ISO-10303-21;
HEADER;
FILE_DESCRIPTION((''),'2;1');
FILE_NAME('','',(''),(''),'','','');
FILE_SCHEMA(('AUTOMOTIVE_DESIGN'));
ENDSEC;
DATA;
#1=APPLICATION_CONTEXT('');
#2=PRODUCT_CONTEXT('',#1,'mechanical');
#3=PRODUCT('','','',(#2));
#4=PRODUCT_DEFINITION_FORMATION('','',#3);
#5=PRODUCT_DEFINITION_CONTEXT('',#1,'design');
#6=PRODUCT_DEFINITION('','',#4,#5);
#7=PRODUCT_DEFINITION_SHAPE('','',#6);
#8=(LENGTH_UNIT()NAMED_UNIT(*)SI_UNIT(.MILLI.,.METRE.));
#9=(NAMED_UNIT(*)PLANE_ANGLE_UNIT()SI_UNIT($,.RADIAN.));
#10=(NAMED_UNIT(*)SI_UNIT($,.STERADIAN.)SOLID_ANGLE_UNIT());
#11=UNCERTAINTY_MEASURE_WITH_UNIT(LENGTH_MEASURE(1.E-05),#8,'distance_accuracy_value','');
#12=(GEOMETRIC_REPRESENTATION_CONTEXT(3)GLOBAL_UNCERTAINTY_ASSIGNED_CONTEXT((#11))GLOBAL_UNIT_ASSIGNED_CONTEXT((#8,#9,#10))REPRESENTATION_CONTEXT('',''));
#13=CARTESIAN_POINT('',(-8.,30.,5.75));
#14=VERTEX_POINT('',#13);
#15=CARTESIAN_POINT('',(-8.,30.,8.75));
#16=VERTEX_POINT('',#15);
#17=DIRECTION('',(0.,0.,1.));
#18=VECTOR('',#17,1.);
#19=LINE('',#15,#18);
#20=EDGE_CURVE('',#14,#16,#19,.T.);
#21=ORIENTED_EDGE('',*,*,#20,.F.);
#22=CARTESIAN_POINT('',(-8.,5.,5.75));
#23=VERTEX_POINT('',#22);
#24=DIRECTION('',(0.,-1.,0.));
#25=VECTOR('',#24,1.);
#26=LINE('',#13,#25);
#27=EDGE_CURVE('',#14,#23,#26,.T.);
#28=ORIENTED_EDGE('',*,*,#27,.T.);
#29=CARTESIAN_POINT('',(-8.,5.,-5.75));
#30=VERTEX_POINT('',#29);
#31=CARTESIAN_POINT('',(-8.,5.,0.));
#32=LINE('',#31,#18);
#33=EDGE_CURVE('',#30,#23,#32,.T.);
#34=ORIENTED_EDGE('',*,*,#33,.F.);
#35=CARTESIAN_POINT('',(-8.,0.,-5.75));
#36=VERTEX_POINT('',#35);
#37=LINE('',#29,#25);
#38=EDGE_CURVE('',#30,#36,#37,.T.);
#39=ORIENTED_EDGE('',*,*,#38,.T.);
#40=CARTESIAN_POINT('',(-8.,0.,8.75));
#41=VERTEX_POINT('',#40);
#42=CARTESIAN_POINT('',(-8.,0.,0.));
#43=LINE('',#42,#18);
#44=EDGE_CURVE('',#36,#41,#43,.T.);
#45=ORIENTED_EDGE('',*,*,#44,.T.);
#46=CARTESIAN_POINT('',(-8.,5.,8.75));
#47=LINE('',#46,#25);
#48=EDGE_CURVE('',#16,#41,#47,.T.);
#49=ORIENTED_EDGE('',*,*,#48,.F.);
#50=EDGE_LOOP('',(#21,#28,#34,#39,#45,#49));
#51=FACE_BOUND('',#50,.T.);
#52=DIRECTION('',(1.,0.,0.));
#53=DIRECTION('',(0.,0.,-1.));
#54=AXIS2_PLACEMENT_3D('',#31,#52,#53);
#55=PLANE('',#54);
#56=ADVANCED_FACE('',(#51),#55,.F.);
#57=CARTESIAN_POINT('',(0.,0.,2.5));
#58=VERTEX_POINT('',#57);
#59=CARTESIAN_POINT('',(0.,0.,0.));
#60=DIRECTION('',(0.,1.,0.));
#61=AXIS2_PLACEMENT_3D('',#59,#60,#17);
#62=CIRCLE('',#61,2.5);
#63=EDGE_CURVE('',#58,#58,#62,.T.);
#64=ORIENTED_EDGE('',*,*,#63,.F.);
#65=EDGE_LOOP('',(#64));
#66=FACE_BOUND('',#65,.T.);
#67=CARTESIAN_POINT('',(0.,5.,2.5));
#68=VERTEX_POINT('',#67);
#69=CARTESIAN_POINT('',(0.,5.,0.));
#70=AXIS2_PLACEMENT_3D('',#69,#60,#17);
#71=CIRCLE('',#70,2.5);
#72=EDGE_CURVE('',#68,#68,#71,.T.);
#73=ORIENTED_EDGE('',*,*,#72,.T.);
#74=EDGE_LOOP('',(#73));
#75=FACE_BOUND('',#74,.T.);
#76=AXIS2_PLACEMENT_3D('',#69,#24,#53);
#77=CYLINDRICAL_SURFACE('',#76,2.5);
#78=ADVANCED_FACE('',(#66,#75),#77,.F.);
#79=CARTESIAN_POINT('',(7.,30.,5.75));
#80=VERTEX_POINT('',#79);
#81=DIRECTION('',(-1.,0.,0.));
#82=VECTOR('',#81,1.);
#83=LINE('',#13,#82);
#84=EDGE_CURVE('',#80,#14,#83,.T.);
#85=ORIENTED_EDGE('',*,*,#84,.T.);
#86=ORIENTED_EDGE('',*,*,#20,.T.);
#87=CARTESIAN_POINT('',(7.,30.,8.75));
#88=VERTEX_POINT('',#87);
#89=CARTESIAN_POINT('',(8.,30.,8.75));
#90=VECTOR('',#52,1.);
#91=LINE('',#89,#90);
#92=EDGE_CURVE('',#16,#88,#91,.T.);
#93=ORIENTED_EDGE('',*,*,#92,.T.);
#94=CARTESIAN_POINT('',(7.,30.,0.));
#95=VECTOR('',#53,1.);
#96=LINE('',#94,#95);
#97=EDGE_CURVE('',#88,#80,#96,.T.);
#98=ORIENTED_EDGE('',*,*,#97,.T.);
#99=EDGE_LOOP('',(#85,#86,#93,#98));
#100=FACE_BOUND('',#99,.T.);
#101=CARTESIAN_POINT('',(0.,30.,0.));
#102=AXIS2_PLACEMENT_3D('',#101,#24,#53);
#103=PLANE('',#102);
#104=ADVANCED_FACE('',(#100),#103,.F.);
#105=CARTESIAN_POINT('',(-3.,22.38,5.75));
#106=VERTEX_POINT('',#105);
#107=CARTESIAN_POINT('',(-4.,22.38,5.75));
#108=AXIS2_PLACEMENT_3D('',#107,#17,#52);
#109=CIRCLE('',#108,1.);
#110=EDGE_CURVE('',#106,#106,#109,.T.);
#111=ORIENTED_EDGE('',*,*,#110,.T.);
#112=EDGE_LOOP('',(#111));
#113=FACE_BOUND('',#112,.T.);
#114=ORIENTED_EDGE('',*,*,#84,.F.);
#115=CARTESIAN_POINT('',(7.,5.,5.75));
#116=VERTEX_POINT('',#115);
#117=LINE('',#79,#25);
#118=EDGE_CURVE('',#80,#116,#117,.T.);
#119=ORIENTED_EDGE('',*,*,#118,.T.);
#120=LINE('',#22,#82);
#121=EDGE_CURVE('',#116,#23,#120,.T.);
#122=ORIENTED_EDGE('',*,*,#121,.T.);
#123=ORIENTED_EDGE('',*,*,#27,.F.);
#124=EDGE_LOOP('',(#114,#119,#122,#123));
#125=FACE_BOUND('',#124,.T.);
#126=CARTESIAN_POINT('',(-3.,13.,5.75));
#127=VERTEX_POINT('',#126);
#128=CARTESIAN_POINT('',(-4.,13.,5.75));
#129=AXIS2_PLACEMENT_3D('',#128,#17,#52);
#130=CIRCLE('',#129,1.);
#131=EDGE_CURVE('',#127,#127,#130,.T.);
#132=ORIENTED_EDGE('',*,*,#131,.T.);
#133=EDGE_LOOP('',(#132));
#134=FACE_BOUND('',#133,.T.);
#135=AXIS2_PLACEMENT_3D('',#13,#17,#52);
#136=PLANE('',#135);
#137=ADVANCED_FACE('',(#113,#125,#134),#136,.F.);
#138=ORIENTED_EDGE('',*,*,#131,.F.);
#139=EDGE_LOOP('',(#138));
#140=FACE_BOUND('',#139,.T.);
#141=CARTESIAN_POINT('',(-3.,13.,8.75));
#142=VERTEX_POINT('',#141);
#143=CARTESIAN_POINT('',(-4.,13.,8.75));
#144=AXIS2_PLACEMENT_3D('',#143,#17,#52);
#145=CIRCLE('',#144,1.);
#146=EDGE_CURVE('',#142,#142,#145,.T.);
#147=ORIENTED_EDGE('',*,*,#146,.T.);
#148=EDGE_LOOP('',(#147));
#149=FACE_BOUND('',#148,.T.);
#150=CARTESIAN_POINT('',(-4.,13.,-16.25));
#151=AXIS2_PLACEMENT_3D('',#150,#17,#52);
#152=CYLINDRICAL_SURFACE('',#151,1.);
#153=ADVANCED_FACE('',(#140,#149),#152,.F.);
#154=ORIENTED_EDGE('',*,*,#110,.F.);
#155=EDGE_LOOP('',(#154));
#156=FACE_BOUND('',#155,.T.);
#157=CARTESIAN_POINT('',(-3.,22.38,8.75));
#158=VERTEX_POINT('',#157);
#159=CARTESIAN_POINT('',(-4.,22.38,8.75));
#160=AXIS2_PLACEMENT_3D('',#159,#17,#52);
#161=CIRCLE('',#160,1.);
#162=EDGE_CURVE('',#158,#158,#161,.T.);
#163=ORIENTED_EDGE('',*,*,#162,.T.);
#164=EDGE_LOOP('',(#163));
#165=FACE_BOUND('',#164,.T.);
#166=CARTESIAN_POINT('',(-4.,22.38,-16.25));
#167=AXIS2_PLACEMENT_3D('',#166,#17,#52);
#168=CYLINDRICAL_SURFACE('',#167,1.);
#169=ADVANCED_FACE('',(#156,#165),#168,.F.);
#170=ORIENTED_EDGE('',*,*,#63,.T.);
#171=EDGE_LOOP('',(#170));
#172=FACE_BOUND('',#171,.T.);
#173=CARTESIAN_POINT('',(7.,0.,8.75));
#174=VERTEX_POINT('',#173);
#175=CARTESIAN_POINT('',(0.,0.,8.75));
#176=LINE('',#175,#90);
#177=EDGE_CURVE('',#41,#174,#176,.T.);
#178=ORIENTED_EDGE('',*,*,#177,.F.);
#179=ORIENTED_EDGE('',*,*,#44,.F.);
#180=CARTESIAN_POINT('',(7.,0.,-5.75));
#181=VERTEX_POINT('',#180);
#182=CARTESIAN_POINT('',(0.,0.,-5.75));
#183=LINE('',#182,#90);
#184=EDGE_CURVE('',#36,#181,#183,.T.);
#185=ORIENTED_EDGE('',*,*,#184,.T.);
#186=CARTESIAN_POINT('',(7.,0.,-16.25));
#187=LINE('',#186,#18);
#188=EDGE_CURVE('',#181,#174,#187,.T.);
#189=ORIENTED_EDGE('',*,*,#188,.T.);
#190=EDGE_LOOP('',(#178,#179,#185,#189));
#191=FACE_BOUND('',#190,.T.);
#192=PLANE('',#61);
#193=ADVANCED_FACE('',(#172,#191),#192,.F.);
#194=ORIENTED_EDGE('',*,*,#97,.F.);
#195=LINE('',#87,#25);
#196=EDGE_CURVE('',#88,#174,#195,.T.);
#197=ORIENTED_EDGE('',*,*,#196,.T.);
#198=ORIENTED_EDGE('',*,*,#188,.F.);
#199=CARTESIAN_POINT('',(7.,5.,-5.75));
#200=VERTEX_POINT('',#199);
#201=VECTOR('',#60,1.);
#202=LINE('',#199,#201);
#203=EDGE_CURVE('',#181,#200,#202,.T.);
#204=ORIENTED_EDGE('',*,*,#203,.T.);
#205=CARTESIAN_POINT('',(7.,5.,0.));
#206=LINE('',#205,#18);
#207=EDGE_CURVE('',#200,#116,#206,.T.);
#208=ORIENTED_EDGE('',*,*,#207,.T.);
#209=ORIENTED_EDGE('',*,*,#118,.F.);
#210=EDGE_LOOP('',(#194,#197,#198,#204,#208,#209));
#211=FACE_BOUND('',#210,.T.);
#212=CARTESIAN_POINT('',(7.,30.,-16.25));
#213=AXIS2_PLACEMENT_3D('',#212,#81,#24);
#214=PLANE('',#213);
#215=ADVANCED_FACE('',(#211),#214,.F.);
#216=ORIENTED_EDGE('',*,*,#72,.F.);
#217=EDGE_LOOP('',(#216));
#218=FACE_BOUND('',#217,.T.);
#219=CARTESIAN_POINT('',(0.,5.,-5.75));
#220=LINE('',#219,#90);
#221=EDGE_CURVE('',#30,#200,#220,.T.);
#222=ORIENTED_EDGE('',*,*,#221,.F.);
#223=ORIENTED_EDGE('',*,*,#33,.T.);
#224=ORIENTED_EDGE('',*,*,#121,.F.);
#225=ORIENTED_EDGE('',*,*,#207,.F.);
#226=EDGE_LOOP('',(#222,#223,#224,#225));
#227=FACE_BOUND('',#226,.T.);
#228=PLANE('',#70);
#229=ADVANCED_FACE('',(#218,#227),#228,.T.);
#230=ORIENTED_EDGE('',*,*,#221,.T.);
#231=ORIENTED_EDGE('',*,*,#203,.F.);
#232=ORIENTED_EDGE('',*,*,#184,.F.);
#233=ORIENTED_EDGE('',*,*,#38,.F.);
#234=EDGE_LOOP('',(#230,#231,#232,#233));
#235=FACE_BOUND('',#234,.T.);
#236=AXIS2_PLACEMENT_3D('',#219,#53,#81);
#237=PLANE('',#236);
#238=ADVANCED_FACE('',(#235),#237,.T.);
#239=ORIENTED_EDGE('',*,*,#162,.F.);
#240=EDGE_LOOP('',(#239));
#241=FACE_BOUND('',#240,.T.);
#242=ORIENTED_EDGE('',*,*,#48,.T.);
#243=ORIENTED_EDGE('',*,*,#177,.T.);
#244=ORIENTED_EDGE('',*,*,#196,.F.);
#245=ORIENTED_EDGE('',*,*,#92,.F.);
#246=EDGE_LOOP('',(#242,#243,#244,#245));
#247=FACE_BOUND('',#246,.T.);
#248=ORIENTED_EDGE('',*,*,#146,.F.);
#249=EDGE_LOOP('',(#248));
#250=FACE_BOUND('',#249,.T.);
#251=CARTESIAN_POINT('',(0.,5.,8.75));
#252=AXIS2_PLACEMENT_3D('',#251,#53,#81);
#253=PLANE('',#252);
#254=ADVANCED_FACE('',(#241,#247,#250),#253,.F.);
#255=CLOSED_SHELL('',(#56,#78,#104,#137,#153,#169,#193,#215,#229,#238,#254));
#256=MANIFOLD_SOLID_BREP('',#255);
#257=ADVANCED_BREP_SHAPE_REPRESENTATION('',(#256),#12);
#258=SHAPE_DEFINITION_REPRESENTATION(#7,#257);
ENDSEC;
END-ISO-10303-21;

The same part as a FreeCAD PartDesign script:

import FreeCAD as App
import Part
import Sketcher

V = App.Vector
Q = App.Units.Quantity


def add_polygon(sketch, points):
    """Adds a closed chain of lines whose ends are joined by coincident constraints."""
    first, n = sketch.GeometryCount, len(points)
    for a, b in zip(points, points[1:] + points[:1]):
        sketch.addGeometry(Part.LineSegment(App.Vector(*a, 0), App.Vector(*b, 0)), False)
    for i in range(n):
        sketch.addConstraint(Sketcher.Constraint("Coincident", first + i, 2, first + (i + 1) % n, 1))

doc = App.newDocument("Part")
body = doc.addObject("PartDesign::Body", "Body")

# Sketch on XZ plane
sketch1 = doc.addObject("Sketcher::SketchObject", "Sketch")
body.addObject(sketch1)
sketch1.AttachmentSupport = (doc.XZ_Plane, [""])
sketch1.MapMode = "FlatFace"
add_polygon(sketch1, [(-8, -5.75), (-8, 8.75), (8, 8.75), (8, -5.75)])  # lines 0-3
sketch1.addGeometry(Part.Circle(V(0, 0, 0), V(0, 0, 1), 2.5), False)  # 4
sketch1.addConstraint([
    Sketcher.Constraint("Vertical", 0),
    Sketcher.Constraint("Horizontal", 1),
    Sketcher.Constraint("Vertical", 2),
    Sketcher.Constraint("Horizontal", 3),
    Sketcher.Constraint("Coincident", 4, 3, -1, 1),
    Sketcher.Constraint("Diameter", 4, Q("5 mm")),
    Sketcher.Constraint("DistanceX", 1, 1, 1, 2, Q("16 mm")),
    Sketcher.Constraint("DistanceY", 0, 1, 0, 2, Q("14.5 mm")),
    Sketcher.Constraint("DistanceX", 0, 2, -1, 1, Q("8 mm")),
    Sketcher.Constraint("DistanceY", -1, 1, 0, 2, Q("8.75 mm")),
])
pad1 = doc.addObject("PartDesign::Pad", "Pad")
body.addObject(pad1)
pad1.Profile = sketch1
pad1.Length = 5
pad1.Reversed = True

# Sketch on XZ plane
sketch2 = doc.addObject("Sketcher::SketchObject", "Sketch001")
body.addObject(sketch2)
sketch2.AttachmentSupport = (doc.XZ_Plane, [""])
sketch2.MapMode = "FlatFace"
sketch2.AttachmentOffset = App.Placement(V(0, 0, -5), App.Rotation())
add_polygon(sketch2, [(-8, 5.75), (-8, 8.75), (8, 8.75), (8, 5.75)])  # lines 0-3
sketch2.addConstraint([
    Sketcher.Constraint("Vertical", 0),
    Sketcher.Constraint("Horizontal", 1),
    Sketcher.Constraint("Vertical", 2),
    Sketcher.Constraint("Horizontal", 3),
    Sketcher.Constraint("DistanceX", 1, 1, 1, 2, Q("16 mm")),
    Sketcher.Constraint("DistanceY", 0, 1, 0, 2, Q("3 mm")),
    Sketcher.Constraint("DistanceX", 0, 2, -1, 1, Q("8 mm")),
    Sketcher.Constraint("DistanceY", -1, 1, 0, 2, Q("8.75 mm")),
])
pad2 = doc.addObject("PartDesign::Pad", "Pad001")
body.addObject(pad2)
pad2.Profile = sketch2
pad2.Length = 25
pad2.Reversed = True

# Sketch on XY plane
sketch3 = doc.addObject("Sketcher::SketchObject", "Sketch002")
body.addObject(sketch3)
sketch3.AttachmentSupport = (doc.XY_Plane, [""])
sketch3.MapMode = "FlatFace"
sketch3.AttachmentOffset = App.Placement(V(0, 0, 8.75), App.Rotation())
sketch3.addGeometry([
    Part.Circle(V(-4, 22.38, 0), V(0, 0, 1), 1),
    Part.Circle(V(-4, 13, 0), V(0, 0, 1), 1),
], False)
sketch3.addConstraint([
    Sketcher.Constraint("Equal", 0, 1),
    Sketcher.Constraint("Vertical", 0, 3, 1, 3),
    Sketcher.Constraint("Diameter", 0, Q("2 mm")),
    Sketcher.Constraint("DistanceX", 0, 3, -1, 1, Q("4 mm")),
    Sketcher.Constraint("DistanceY", -1, 1, 1, 3, Q("13 mm")),
    Sketcher.Constraint("DistanceY", -1, 1, 0, 3, Q("22.38 mm")),
])
pocket1 = doc.addObject("PartDesign::Pocket", "Pocket")
body.addObject(pocket1)
pocket1.Profile = sketch3
pocket1.Length = 25

# Sketch on XY plane
sketch4 = doc.addObject("Sketcher::SketchObject", "Sketch003")
body.addObject(sketch4)
sketch4.AttachmentSupport = (doc.XY_Plane, [""])
sketch4.MapMode = "FlatFace"
sketch4.AttachmentOffset = App.Placement(V(0, 0, 8.75), App.Rotation())
add_polygon(sketch4, [(7, 30), (7, 0), (8, 0), (8, 30)])  # lines 0-3
sketch4.addConstraint([
    Sketcher.Constraint("Vertical", 0),
    Sketcher.Constraint("Horizontal", 1),
    Sketcher.Constraint("Vertical", 2),
    Sketcher.Constraint("Horizontal", 3),
    Sketcher.Constraint("PointOnObject", 0, 2, -1),
    Sketcher.Constraint("DistanceX", 1, 1, 1, 2, Q("1 mm")),
    Sketcher.Constraint("DistanceY", 0, 2, 0, 1, Q("30 mm")),
    Sketcher.Constraint("DistanceX", -1, 1, 0, 2, Q("7 mm")),
])
pocket2 = doc.addObject("PartDesign::Pocket", "Pocket001")
body.addObject(pocket2)
pocket2.Profile = sketch4
pocket2.Length = 25

doc.recompute()
